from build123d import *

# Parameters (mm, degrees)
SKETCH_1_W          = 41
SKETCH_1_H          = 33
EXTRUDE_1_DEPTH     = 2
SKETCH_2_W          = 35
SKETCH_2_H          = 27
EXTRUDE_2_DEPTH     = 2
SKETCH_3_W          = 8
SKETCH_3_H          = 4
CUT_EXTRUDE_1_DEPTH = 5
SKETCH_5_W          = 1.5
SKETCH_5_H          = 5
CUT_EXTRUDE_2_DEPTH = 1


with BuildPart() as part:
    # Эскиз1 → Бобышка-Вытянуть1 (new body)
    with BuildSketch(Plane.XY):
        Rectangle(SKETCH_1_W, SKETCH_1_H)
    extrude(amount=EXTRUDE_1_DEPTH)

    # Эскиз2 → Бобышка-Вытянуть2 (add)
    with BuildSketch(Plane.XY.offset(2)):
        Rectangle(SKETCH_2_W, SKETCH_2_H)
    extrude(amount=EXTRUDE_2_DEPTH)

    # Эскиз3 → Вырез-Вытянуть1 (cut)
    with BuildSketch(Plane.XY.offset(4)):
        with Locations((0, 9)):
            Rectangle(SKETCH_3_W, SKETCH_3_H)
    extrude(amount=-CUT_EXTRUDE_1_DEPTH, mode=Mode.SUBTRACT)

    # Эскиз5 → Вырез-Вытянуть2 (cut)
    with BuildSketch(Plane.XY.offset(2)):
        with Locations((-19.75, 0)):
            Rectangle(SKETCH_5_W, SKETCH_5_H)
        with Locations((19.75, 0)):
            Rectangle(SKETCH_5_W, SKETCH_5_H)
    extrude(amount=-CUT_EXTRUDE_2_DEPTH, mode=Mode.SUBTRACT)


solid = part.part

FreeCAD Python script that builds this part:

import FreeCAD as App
import Part
import Sketcher

V = App.Vector


def add_polygon(sketch, points):
    """Adds a closed chain of lines whose ends are joined by coincident constraints."""
    first, n = sketch.GeometryCount, len(points)
    for a, b in zip(points, points[1:] + points[:1]):
        sketch.addGeometry(Part.LineSegment(App.Vector(*a, 0), App.Vector(*b, 0)), False)
    for i in range(n):
        sketch.addConstraint(Sketcher.Constraint("Coincident", first + i, 2, first + (i + 1) % n, 1))

doc = App.newDocument("Part")
body = doc.addObject("PartDesign::Body", "Body")

# Sketch on XY plane
sketch1 = body.newObject("Sketcher::SketchObject", "Sketch")
sketch1.AttachmentSupport = (doc.getObject("XY_Plane"), [""])
sketch1.MapMode = "FlatFace"
add_polygon(sketch1, [(-20.5, 16.5), (-20.5, -16.5), (20.5, -16.5), (20.5, 16.5)])  # lines 0-3
sketch1.addConstraint(Sketcher.Constraint("Vertical", 0))
sketch1.addConstraint(Sketcher.Constraint("Horizontal", 1))
sketch1.addConstraint(Sketcher.Constraint("Vertical", 2))
sketch1.addConstraint(Sketcher.Constraint("Horizontal", 3))
sketch1.addConstraint(Sketcher.Constraint("Symmetric", 0, 2, 2, 2, -1, 1))
sketch1.addConstraint(Sketcher.Constraint("DistanceX", 1, 1, 1, 2, 41.0))
sketch1.addConstraint(Sketcher.Constraint("DistanceY", 0, 2, 0, 1, 33.0))
pad1 = body.newObject("PartDesign::Pad", "Pad")
pad1.Profile = sketch1
pad1.Length = 2

# Sketch on XY plane
sketch2 = body.newObject("Sketcher::SketchObject", "Sketch001")
sketch2.AttachmentSupport = (doc.getObject("XY_Plane"), [""])
sketch2.MapMode = "FlatFace"
sketch2.AttachmentOffset = App.Placement(V(0, 0, 2), App.Rotation())
add_polygon(sketch2, [(-17.5, 13.5), (-17.5, -13.5), (17.5, -13.5), (17.5, 13.5)])  # lines 0-3
sketch2.addConstraint(Sketcher.Constraint("Vertical", 0))
sketch2.addConstraint(Sketcher.Constraint("Horizontal", 1))
sketch2.addConstraint(Sketcher.Constraint("Vertical", 2))
sketch2.addConstraint(Sketcher.Constraint("Horizontal", 3))
sketch2.addConstraint(Sketcher.Constraint("Symmetric", 0, 2, 2, 2, -1, 1))
sketch2.addConstraint(Sketcher.Constraint("DistanceX", 1, 1, 1, 2, 35.0))
sketch2.addConstraint(Sketcher.Constraint("DistanceY", 0, 2, 0, 1, 27.0))
pad2 = body.newObject("PartDesign::Pad", "Pad001")
pad2.Profile = sketch2
pad2.Length = 2

# Sketch on XY plane
sketch3 = body.newObject("Sketcher::SketchObject", "Sketch002")
sketch3.AttachmentSupport = (doc.getObject("XY_Plane"), [""])
sketch3.MapMode = "FlatFace"
sketch3.AttachmentOffset = App.Placement(V(0, 0, 4), App.Rotation())
add_polygon(sketch3, [(-4, 11), (-4, 7), (4, 7), (4, 11)])  # lines 0-3
sketch3.addConstraint(Sketcher.Constraint("Vertical", 0))
sketch3.addConstraint(Sketcher.Constraint("Horizontal", 1))
sketch3.addConstraint(Sketcher.Constraint("Vertical", 2))
sketch3.addConstraint(Sketcher.Constraint("Horizontal", 3))
sketch3.addConstraint(Sketcher.Constraint("DistanceX", 1, 1, 1, 2, 8.0))
sketch3.addConstraint(Sketcher.Constraint("DistanceY", 0, 2, 0, 1, 4.0))
sketch3.addConstraint(Sketcher.Constraint("DistanceX", 0, 2, -1, 1, 4.0))
sketch3.addConstraint(Sketcher.Constraint("DistanceY", -1, 1, 0, 2, 7.0))
pocket1 = body.newObject("PartDesign::Pocket", "Pocket")
pocket1.Profile = sketch3
pocket1.Length = 5

# Sketch on XY plane
sketch4 = body.newObject("Sketcher::SketchObject", "Sketch003")
sketch4.AttachmentSupport = (doc.getObject("XY_Plane"), [""])
sketch4.MapMode = "FlatFace"
sketch4.AttachmentOffset = App.Placement(V(0, 0, 2), App.Rotation())
add_polygon(sketch4, [(-20.5, 2.5), (-20.5, -2.5), (-19, -2.5), (-19, 2.5)])  # lines 0-3
add_polygon(sketch4, [(19, 2.5), (19, -2.5), (20.5, -2.5), (20.5, 2.5)])  # lines 4-7
sketch4.addConstraint(Sketcher.Constraint("Vertical", 0))
sketch4.addConstraint(Sketcher.Constraint("Horizontal", 1))
sketch4.addConstraint(Sketcher.Constraint("Vertical", 2))
sketch4.addConstraint(Sketcher.Constraint("Horizontal", 3))
sketch4.addConstraint(Sketcher.Constraint("Vertical", 4))
sketch4.addConstraint(Sketcher.Constraint("Horizontal", 5))
sketch4.addConstraint(Sketcher.Constraint("Vertical", 6))
sketch4.addConstraint(Sketcher.Constraint("Horizontal", 7))
sketch4.addConstraint(Sketcher.Constraint("Symmetric", 2, 2, 4, 2, -1, 1))
sketch4.addConstraint(Sketcher.Constraint("Symmetric", 0, 2, 6, 2, -1, 1))
sketch4.addConstraint(Sketcher.Constraint("Horizontal", 1, 2, 4, 2))
sketch4.addConstraint(Sketcher.Constraint("DistanceY", 0, 2, 0, 1, 5.0))
sketch4.addConstraint(Sketcher.Constraint("DistanceX", 1, 1, 1, 2, 1.5))
sketch4.addConstraint(Sketcher.Constraint("DistanceX", 1, 2, -1, 1, 19.0))
pocket2 = body.newObject("PartDesign::Pocket", "Pocket001")
pocket2.Profile = sketch4
pocket2.Length = 1

doc.recompute()
